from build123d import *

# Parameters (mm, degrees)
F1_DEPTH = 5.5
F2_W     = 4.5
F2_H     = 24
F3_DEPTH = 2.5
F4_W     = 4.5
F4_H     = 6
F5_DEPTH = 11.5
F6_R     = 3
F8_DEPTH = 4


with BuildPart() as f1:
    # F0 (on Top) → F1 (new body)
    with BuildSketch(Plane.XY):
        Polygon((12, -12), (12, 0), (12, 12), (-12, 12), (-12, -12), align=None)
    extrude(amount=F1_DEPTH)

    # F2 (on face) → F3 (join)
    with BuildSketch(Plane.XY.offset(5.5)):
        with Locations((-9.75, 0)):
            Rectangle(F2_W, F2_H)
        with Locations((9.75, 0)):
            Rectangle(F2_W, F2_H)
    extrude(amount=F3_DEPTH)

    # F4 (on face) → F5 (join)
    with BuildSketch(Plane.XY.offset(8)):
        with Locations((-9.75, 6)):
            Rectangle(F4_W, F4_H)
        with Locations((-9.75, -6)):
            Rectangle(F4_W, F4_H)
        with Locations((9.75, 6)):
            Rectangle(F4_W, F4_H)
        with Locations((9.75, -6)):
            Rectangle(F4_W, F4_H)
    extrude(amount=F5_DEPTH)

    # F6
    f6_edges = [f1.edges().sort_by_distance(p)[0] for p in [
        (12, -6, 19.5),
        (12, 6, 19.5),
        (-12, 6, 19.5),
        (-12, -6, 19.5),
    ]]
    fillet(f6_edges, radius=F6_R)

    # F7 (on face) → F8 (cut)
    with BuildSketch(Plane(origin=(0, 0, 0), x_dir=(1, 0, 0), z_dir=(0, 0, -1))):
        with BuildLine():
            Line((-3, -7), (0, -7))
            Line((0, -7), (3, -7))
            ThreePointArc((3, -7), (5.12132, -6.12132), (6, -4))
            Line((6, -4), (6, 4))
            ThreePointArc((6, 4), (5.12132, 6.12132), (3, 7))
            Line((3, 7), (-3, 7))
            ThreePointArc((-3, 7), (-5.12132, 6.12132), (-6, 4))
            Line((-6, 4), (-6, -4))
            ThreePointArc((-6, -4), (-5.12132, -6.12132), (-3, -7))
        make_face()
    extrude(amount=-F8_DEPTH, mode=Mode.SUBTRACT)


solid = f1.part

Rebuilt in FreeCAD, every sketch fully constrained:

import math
import FreeCAD as App
import Part
import Sketcher

V = App.Vector
Q = App.Units.Quantity


def edges_at(feature, points):
    """Names of the edges that pass closest to the given points."""
    edges = feature.Shape.Edges
    near = lambda p: min(range(len(edges)), key=lambda i: edges[i].distToShape(Part.Vertex(*p))[0])
    return sorted({f"Edge{near(p) + 1}" for p in points})


def add_polygon(sketch, points):
    """Adds a closed chain of lines whose ends are joined by coincident constraints."""
    first, n = sketch.GeometryCount, len(points)
    for a, b in zip(points, points[1:] + points[:1]):
        sketch.addGeometry(Part.LineSegment(App.Vector(*a, 0), App.Vector(*b, 0)), False)
    for i in range(n):
        sketch.addConstraint(Sketcher.Constraint("Coincident", first + i, 2, first + (i + 1) % n, 1))

doc = App.newDocument("Part")
body = doc.addObject("PartDesign::Body", "Body")

# Sketch on XY plane
sketch1 = doc.addObject("Sketcher::SketchObject", "Sketch")
body.addObject(sketch1)
sketch1.AttachmentSupport = (doc.XY_Plane, [""])
sketch1.MapMode = "FlatFace"
add_polygon(sketch1, [(12, -12), (12, 12), (-12, 12), (-12, -12)])  # lines 0-3
sketch1.addConstraint(Sketcher.Constraint("Vertical", 0))
sketch1.addConstraint(Sketcher.Constraint("Horizontal", 1))
sketch1.addConstraint(Sketcher.Constraint("Vertical", 2))
sketch1.addConstraint(Sketcher.Constraint("Horizontal", 3))
sketch1.addConstraint(Sketcher.Constraint("Symmetric", 0, 2, 2, 2, -1, 1))
sketch1.addConstraint(Sketcher.Constraint("Equal", 3, 0))
sketch1.addConstraint(Sketcher.Constraint("DistanceX", 1, 2, 1, 1, Q("24 mm")))
pad1 = doc.addObject("PartDesign::Pad", "Pad")
body.addObject(pad1)
pad1.Profile = sketch1
pad1.Length = 5.5

# Sketch on XY plane
sketch2 = doc.addObject("Sketcher::SketchObject", "Sketch001")
body.addObject(sketch2)
sketch2.AttachmentSupport = (doc.XY_Plane, [""])
sketch2.MapMode = "FlatFace"
sketch2.AttachmentOffset = App.Placement(V(0, 0, 5.5), App.Rotation())
add_polygon(sketch2, [(-12, 12), (-12, -12), (-7.5, -12), (-7.5, 12)])  # lines 0-3
add_polygon(sketch2, [(7.5, 12), (7.5, -12), (12, -12), (12, 12)])  # lines 4-7
sketch2.addConstraint(Sketcher.Constraint("Vertical", 0))
sketch2.addConstraint(Sketcher.Constraint("Horizontal", 1))
sketch2.addConstraint(Sketcher.Constraint("Vertical", 2))
sketch2.addConstraint(Sketcher.Constraint("Horizontal", 3))
sketch2.addConstraint(Sketcher.Constraint("Vertical", 4))
sketch2.addConstraint(Sketcher.Constraint("Horizontal", 5))
sketch2.addConstraint(Sketcher.Constraint("Vertical", 6))
sketch2.addConstraint(Sketcher.Constraint("Horizontal", 7))
sketch2.addConstraint(Sketcher.Constraint("Symmetric", 2, 2, 4, 2, -1, 1))
sketch2.addConstraint(Sketcher.Constraint("Symmetric", 0, 2, 6, 2, -1, 1))
sketch2.addConstraint(Sketcher.Constraint("Horizontal", 1, 2, 4, 2))
sketch2.addConstraint(Sketcher.Constraint("DistanceY", 0, 2, 0, 1, Q("24 mm")))
sketch2.addConstraint(Sketcher.Constraint("DistanceX", 1, 1, 1, 2, Q("4.5 mm")))
sketch2.addConstraint(Sketcher.Constraint("DistanceX", 0, 2, -1, 1, Q("12 mm")))
pad2 = doc.addObject("PartDesign::Pad", "Pad001")
body.addObject(pad2)
pad2.Profile = sketch2
pad2.Length = 2.5

# Sketch on XY plane
sketch3 = doc.addObject("Sketcher::SketchObject", "Sketch002")
body.addObject(sketch3)
sketch3.AttachmentSupport = (doc.XY_Plane, [""])
sketch3.MapMode = "FlatFace"
sketch3.AttachmentOffset = App.Placement(V(0, 0, 8), App.Rotation())
add_polygon(sketch3, [(-12, 9), (-12, 3), (-7.5, 3), (-7.5, 9)])  # lines 0-3
add_polygon(sketch3, [(-12, -3), (-12, -9), (-7.5, -9), (-7.5, -3)])  # lines 4-7
add_polygon(sketch3, [(7.5, 9), (7.5, 3), (12, 3), (12, 9)])  # lines 8-11
add_polygon(sketch3, [(7.5, -3), (7.5, -9), (12, -9), (12, -3)])  # lines 12-15
sketch3.addConstraint(Sketcher.Constraint("Vertical", 0))
sketch3.addConstraint(Sketcher.Constraint("Horizontal", 1))
sketch3.addConstraint(Sketcher.Constraint("Vertical", 2))
sketch3.addConstraint(Sketcher.Constraint("Horizontal", 3))
sketch3.addConstraint(Sketcher.Constraint("Vertical", 4))
sketch3.addConstraint(Sketcher.Constraint("Horizontal", 5))
sketch3.addConstraint(Sketcher.Constraint("Vertical", 6))
sketch3.addConstraint(Sketcher.Constraint("Horizontal", 7))
sketch3.addConstraint(Sketcher.Constraint("Vertical", 8))
sketch3.addConstraint(Sketcher.Constraint("Horizontal", 9))
sketch3.addConstraint(Sketcher.Constraint("Vertical", 10))
sketch3.addConstraint(Sketcher.Constraint("Horizontal", 11))
sketch3.addConstraint(Sketcher.Constraint("Vertical", 12))
sketch3.addConstraint(Sketcher.Constraint("Horizontal", 13))
sketch3.addConstraint(Sketcher.Constraint("Vertical", 14))
sketch3.addConstraint(Sketcher.Constraint("Horizontal", 15))
sketch3.addConstraint(Sketcher.Constraint("Symmetric", 6, 2, 8, 2, -1, 1))
sketch3.addConstraint(Sketcher.Constraint("Symmetric", 4, 2, 10, 2, -1, 1))
sketch3.addConstraint(Sketcher.Constraint("Symmetric", 2, 2, 12, 2, -1, 1))
sketch3.addConstraint(Sketcher.Constraint("Symmetric", 0, 2, 14, 2, -1, 1))
sketch3.addConstraint(Sketcher.Constraint("Symmetric", 1, 2, 8, 2, -2))
sketch3.addConstraint(Sketcher.Constraint("Symmetric", 3, 2, 10, 2, -2))
sketch3.addConstraint(Sketcher.Constraint("DistanceY", 0, 2, 0, 1, Q("6 mm")))
sketch3.addConstraint(Sketcher.Constraint("DistanceX", 1, 1, 1, 2, Q("4.5 mm")))
sketch3.addConstraint(Sketcher.Constraint("DistanceX", 0, 2, -1, 1, Q("12 mm")))
sketch3.addConstraint(Sketcher.Constraint("DistanceY", -1, 1, 0, 2, Q("3 mm")))
pad3 = doc.addObject("PartDesign::Pad", "Pad002")
body.addObject(pad3)
pad3.Profile = sketch3
pad3.Length = 11.5
doc.recompute()

fillet = doc.addObject("PartDesign::Fillet", "Fillet")
body.addObject(fillet)
fillet.Base = (pad3, edges_at(pad3, [
    (12, -6, 19.5),
    (12, 6, 19.5),
    (-12, 6, 19.5),
    (-12, -6, 19.5),
]))
fillet.Radius = 3

# Sketch on XY plane
sketch4 = doc.addObject("Sketcher::SketchObject", "Sketch003")
body.addObject(sketch4)
sketch4.AttachmentSupport = (doc.XY_Plane, [""])
sketch4.MapMode = "FlatFace"
sketch4.addGeometry(Part.LineSegment(V(-3, 7, 0), V(3, 7, 0)), False)
sketch4.addGeometry(Part.ArcOfCircle(Part.Circle(V(3, 4, 0), V(0, 0, 1), 3), math.radians(0), math.radians(90)), False)
sketch4.addGeometry(Part.LineSegment(V(6, 4, 0), V(6, -4, 0)), False)
sketch4.addGeometry(Part.ArcOfCircle(Part.Circle(V(3, -4, 0), V(0, 0, 1), 3), math.radians(-90), math.radians(0)), False)
sketch4.addGeometry(Part.LineSegment(V(3, -7, 0), V(-3, -7, 0)), False)
sketch4.addGeometry(Part.ArcOfCircle(Part.Circle(V(-3, -4, 0), V(0, 0, 1), 3), math.radians(-180), math.radians(-90)), False)
sketch4.addGeometry(Part.LineSegment(V(-6, -4, 0), V(-6, 4, 0)), False)
sketch4.addGeometry(Part.ArcOfCircle(Part.Circle(V(-3, 4, 0), V(0, 0, 1), 3), math.radians(90), math.radians(180)), False)
sketch4.addConstraint(Sketcher.Constraint("Tangent", 0, 2, 1, 2))
sketch4.addConstraint(Sketcher.Constraint("Tangent", 1, 1, 2, 1))
sketch4.addConstraint(Sketcher.Constraint("Tangent", 2, 2, 3, 2))
sketch4.addConstraint(Sketcher.Constraint("Tangent", 3, 1, 4, 1))
sketch4.addConstraint(Sketcher.Constraint("Tangent", 4, 2, 5, 2))
sketch4.addConstraint(Sketcher.Constraint("Tangent", 5, 1, 6, 1))
sketch4.addConstraint(Sketcher.Constraint("Tangent", 6, 2, 7, 2))
sketch4.addConstraint(Sketcher.Constraint("Tangent", 7, 1, 0, 1))
sketch4.addConstraint(Sketcher.Constraint("Horizontal", 0))
sketch4.addConstraint(Sketcher.Constraint("Vertical", 2))
sketch4.addConstraint(Sketcher.Constraint("Horizontal", 4))
sketch4.addConstraint(Sketcher.Constraint("Vertical", 6))
sketch4.addConstraint(Sketcher.Constraint("Equal", 1, 3))
sketch4.addConstraint(Sketcher.Constraint("Equal", 3, 5))
sketch4.addConstraint(Sketcher.Constraint("Equal", 5, 7))
sketch4.addConstraint(Sketcher.Constraint("Symmetric", 1, 3, 5, 3, -1, 1))
sketch4.addConstraint(Sketcher.Constraint("Radius", 1, Q("3.000001 mm")))
sketch4.addConstraint(Sketcher.Constraint("DistanceX", 0, 1, 0, 2, Q("6 mm")))
sketch4.addConstraint(Sketcher.Constraint("DistanceY", 2, 2, 2, 1, Q("8 mm")))
pocket1 = doc.addObject("PartDesign::Pocket", "Pocket")
body.addObject(pocket1)
pocket1.Profile = sketch4
pocket1.Length = 4
pocket1.Reversed = True

doc.recompute()
